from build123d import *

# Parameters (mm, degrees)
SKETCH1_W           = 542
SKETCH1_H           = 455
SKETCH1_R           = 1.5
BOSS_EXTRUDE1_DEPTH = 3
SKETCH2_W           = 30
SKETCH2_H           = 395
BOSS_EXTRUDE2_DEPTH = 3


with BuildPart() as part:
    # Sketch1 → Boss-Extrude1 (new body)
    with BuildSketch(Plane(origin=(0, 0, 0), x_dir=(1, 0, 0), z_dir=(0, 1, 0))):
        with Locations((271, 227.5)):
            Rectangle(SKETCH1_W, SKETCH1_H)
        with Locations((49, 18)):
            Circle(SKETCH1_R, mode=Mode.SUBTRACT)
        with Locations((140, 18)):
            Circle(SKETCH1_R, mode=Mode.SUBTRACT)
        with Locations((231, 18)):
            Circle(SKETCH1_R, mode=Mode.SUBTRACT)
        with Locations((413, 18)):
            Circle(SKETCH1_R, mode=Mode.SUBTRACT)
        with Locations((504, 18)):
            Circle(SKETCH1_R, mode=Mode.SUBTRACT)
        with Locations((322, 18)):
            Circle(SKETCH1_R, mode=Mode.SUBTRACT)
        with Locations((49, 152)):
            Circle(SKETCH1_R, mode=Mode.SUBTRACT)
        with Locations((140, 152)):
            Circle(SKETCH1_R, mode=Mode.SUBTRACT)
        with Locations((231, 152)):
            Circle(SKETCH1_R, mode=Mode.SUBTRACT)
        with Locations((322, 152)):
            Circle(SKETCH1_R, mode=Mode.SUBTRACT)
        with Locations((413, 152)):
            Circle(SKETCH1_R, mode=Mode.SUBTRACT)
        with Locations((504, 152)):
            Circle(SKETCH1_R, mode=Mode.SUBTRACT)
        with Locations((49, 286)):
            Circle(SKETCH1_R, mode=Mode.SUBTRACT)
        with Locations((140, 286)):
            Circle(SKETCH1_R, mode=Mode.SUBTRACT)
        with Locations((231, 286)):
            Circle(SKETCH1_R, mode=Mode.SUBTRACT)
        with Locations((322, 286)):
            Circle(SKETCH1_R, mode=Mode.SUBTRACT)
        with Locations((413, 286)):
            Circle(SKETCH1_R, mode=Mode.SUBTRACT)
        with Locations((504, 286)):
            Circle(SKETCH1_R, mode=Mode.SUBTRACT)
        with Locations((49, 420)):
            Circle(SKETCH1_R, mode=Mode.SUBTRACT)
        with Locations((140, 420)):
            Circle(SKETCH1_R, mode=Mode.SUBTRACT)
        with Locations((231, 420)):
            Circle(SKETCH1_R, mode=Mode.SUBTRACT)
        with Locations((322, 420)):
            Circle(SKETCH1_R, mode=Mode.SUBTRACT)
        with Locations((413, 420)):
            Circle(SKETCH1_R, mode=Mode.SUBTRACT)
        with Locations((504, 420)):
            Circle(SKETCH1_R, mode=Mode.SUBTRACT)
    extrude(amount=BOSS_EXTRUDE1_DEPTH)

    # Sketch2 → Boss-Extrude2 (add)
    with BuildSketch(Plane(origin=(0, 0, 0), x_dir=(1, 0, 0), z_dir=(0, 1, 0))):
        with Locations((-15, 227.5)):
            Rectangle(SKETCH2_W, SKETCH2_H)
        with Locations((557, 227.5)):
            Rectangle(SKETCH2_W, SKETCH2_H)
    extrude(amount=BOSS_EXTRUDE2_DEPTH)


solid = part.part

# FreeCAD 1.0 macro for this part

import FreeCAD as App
import Part
import Sketcher

V = App.Vector
Q = App.Units.Quantity

doc = App.newDocument("Part")
body = doc.addObject("PartDesign::Body", "Body")

# Sketch on XZ plane
sketch1 = body.newObject("Sketcher::SketchObject", "Sketch")
sketch1.AttachmentSupport = (doc.getObject("XZ_Plane"), [""])
sketch1.MapMode = "FlatFace"
sketch1.addGeometry([
    Part.LineSegment(V(0, -455, 0), V(0, 0, 0)),  # 0
    Part.LineSegment(V(0, 0, 0), V(542, 0, 0)),  # 1
    Part.LineSegment(V(542, 0, 0), V(542, -455, 0)),  # 2
    Part.LineSegment(V(542, -455, 0), V(0, -455, 0)),  # 3
    Part.Circle(V(49, -18, 0), V(0, 0, 1), 1.5),  # 4
    Part.Circle(V(140, -18, 0), V(0, 0, 1), 1.5),  # 5
    Part.Circle(V(231, -18, 0), V(0, 0, 1), 1.5),  # 6
    Part.Circle(V(49, -152, 0), V(0, 0, 1), 1.5),  # 7
    Part.Circle(V(140, -152, 0), V(0, 0, 1), 1.5),  # 8
    Part.Circle(V(231, -152, 0), V(0, 0, 1), 1.5),  # 9
    Part.Circle(V(322, -18, 0), V(0, 0, 1), 1.5),  # 10
    Part.Circle(V(413, -18, 0), V(0, 0, 1), 1.5),  # 11
    Part.Circle(V(504, -18, 0), V(0, 0, 1), 1.5),  # 12
    Part.Circle(V(322, -152, 0), V(0, 0, 1), 1.5),  # 13
    Part.Circle(V(413, -152, 0), V(0, 0, 1), 1.5),  # 14
    Part.Circle(V(504, -152, 0), V(0, 0, 1), 1.5),  # 15
    Part.Circle(V(49, -286, 0), V(0, 0, 1), 1.5),  # 16
    Part.Circle(V(140, -286, 0), V(0, 0, 1), 1.5),  # 17
    Part.Circle(V(231, -286, 0), V(0, 0, 1), 1.5),  # 18
    Part.Circle(V(49, -420, 0), V(0, 0, 1), 1.5),  # 19
    Part.Circle(V(140, -420, 0), V(0, 0, 1), 1.5),  # 20
    Part.Circle(V(231, -420, 0), V(0, 0, 1), 1.5),  # 21
    Part.Circle(V(322, -286, 0), V(0, 0, 1), 1.5),  # 22
    Part.Circle(V(413, -286, 0), V(0, 0, 1), 1.5),  # 23
    Part.Circle(V(504, -286, 0), V(0, 0, 1), 1.5),  # 24
    Part.Circle(V(322, -420, 0), V(0, 0, 1), 1.5),  # 25
    Part.Circle(V(413, -420, 0), V(0, 0, 1), 1.5),  # 26
    Part.Circle(V(504, -420, 0), V(0, 0, 1), 1.5),  # 27
], False)
sketch1.addConstraint([
    Sketcher.Constraint("Coincident", 0, 2, 1, 1),
    Sketcher.Constraint("Coincident", 1, 2, 2, 1),
    Sketcher.Constraint("Coincident", 2, 2, 3, 1),
    Sketcher.Constraint("Coincident", 3, 2, 0, 1),
    Sketcher.Constraint("Vertical", 0),
    Sketcher.Constraint("Horizontal", 1),
    Sketcher.Constraint("Vertical", 2),
    Sketcher.Constraint("Horizontal", 3),
    Sketcher.Constraint("Coincident", 0, 2, -1, 1),
    Sketcher.Constraint("Equal", 4, 5),
    Sketcher.Constraint("Equal", 5, 6),
    Sketcher.Constraint("Equal", 6, 7),
    Sketcher.Constraint("Equal", 7, 8),
    Sketcher.Constraint("Equal", 8, 9),
    Sketcher.Constraint("Equal", 9, 10),
    Sketcher.Constraint("Equal", 10, 11),
    Sketcher.Constraint("Equal", 11, 12),
    Sketcher.Constraint("Equal", 12, 13),
    Sketcher.Constraint("Equal", 13, 14),
    Sketcher.Constraint("Equal", 14, 15),
    Sketcher.Constraint("Equal", 15, 16),
    Sketcher.Constraint("Equal", 16, 17),
    Sketcher.Constraint("Equal", 17, 18),
    Sketcher.Constraint("Equal", 18, 19),
    Sketcher.Constraint("Equal", 19, 20),
    Sketcher.Constraint("Equal", 20, 21),
    Sketcher.Constraint("Equal", 21, 22),
    Sketcher.Constraint("Equal", 22, 23),
    Sketcher.Constraint("Equal", 23, 24),
    Sketcher.Constraint("Equal", 24, 25),
    Sketcher.Constraint("Equal", 25, 26),
    Sketcher.Constraint("Equal", 26, 27),
    Sketcher.Constraint("Horizontal", 4, 3, 5, 3),
    Sketcher.Constraint("Horizontal", 5, 3, 6, 3),
    Sketcher.Constraint("Horizontal", 7, 3, 8, 3),
    Sketcher.Constraint("Horizontal", 8, 3, 9, 3),
    Sketcher.Constraint("Horizontal", 6, 3, 10, 3),
    Sketcher.Constraint("Horizontal", 10, 3, 11, 3),
    Sketcher.Constraint("Horizontal", 11, 3, 12, 3),
    Sketcher.Constraint("Horizontal", 9, 3, 13, 3),
    Sketcher.Constraint("Horizontal", 13, 3, 14, 3),
    Sketcher.Constraint("Horizontal", 14, 3, 15, 3),
    Sketcher.Constraint("Horizontal", 16, 3, 17, 3),
    Sketcher.Constraint("Horizontal", 17, 3, 18, 3),
    Sketcher.Constraint("Horizontal", 19, 3, 20, 3),
    Sketcher.Constraint("Horizontal", 20, 3, 21, 3),
    Sketcher.Constraint("Horizontal", 18, 3, 22, 3),
    Sketcher.Constraint("Horizontal", 22, 3, 23, 3),
    Sketcher.Constraint("Horizontal", 23, 3, 24, 3),
    Sketcher.Constraint("Horizontal", 21, 3, 25, 3),
    Sketcher.Constraint("Horizontal", 25, 3, 26, 3),
    Sketcher.Constraint("Horizontal", 26, 3, 27, 3),
    Sketcher.Constraint("Vertical", 4, 3, 7, 3),
    Sketcher.Constraint("Vertical", 5, 3, 8, 3),
    Sketcher.Constraint("Vertical", 6, 3, 9, 3),
    Sketcher.Constraint("Vertical", 10, 3, 13, 3),
    Sketcher.Constraint("Vertical", 11, 3, 14, 3),
    Sketcher.Constraint("Vertical", 12, 3, 15, 3),
    Sketcher.Constraint("Vertical", 7, 3, 16, 3),
    Sketcher.Constraint("Vertical", 8, 3, 17, 3),
    Sketcher.Constraint("Vertical", 9, 3, 18, 3),
    Sketcher.Constraint("Vertical", 16, 3, 19, 3),
    Sketcher.Constraint("Vertical", 17, 3, 20, 3),
    Sketcher.Constraint("Vertical", 18, 3, 21, 3),
    Sketcher.Constraint("Vertical", 13, 3, 22, 3),
    Sketcher.Constraint("Vertical", 14, 3, 23, 3),
    Sketcher.Constraint("Vertical", 15, 3, 24, 3),
    Sketcher.Constraint("Vertical", 22, 3, 25, 3),
    Sketcher.Constraint("Vertical", 23, 3, 26, 3),
    Sketcher.Constraint("Vertical", 24, 3, 27, 3),
    Sketcher.Constraint("Diameter", 4, Q("3 mm")),
    Sketcher.Constraint("DistanceX", 1, 1, 1, 2, Q("542 mm")),
    Sketcher.Constraint("DistanceY", 0, 1, 0, 2, Q("455 mm")),
    Sketcher.Constraint("DistanceX", -1, 1, 4, 3, Q("49 mm")),
    Sketcher.Constraint("DistanceY", 4, 3, -1, 1, Q("18 mm")),
    Sketcher.Constraint("DistanceX", -1, 1, 5, 3, Q("140 mm")),
    Sketcher.Constraint("DistanceX", -1, 1, 6, 3, Q("231 mm")),
    Sketcher.Constraint("DistanceY", 7, 3, -1, 1, Q("152 mm")),
    Sketcher.Constraint("DistanceX", -1, 1, 10, 3, Q("322 mm")),
    Sketcher.Constraint("DistanceX", -1, 1, 11, 3, Q("413 mm")),
    Sketcher.Constraint("DistanceX", -1, 1, 12, 3, Q("504 mm")),
    Sketcher.Constraint("DistanceY", 16, 3, -1, 1, Q("286 mm")),
    Sketcher.Constraint("DistanceY", 19, 3, -1, 1, Q("420 mm")),
])
pad1 = body.newObject("PartDesign::Pad", "Pad")
pad1.Profile = sketch1
pad1.Length = 3
pad1.Reversed = True

# Sketch on XZ plane
sketch2 = body.newObject("Sketcher::SketchObject", "Sketch001")
sketch2.AttachmentSupport = (doc.getObject("XZ_Plane"), [""])
sketch2.MapMode = "FlatFace"
sketch2.addGeometry([
    Part.LineSegment(V(-30, -425, 0), V(-30, -30, 0)),  # 0
    Part.LineSegment(V(-30, -30, 0), V(0, -30, 0)),  # 1
    Part.LineSegment(V(0, -30, 0), V(0, -425, 0)),  # 2
    Part.LineSegment(V(0, -425, 0), V(-30, -425, 0)),  # 3
    Part.LineSegment(V(542, -425, 0), V(542, -30, 0)),  # 4
    Part.LineSegment(V(542, -30, 0), V(572, -30, 0)),  # 5
    Part.LineSegment(V(572, -30, 0), V(572, -425, 0)),  # 6
    Part.LineSegment(V(572, -425, 0), V(542, -425, 0)),  # 7
], False)
sketch2.addConstraint([
    Sketcher.Constraint("Coincident", 0, 2, 1, 1),
    Sketcher.Constraint("Coincident", 1, 2, 2, 1),
    Sketcher.Constraint("Coincident", 2, 2, 3, 1),
    Sketcher.Constraint("Coincident", 3, 2, 0, 1),
    Sketcher.Constraint("Coincident", 4, 2, 5, 1),
    Sketcher.Constraint("Coincident", 5, 2, 6, 1),
    Sketcher.Constraint("Coincident", 6, 2, 7, 1),
    Sketcher.Constraint("Coincident", 7, 2, 4, 1),
    Sketcher.Constraint("Vertical", 0),
    Sketcher.Constraint("Horizontal", 1),
    Sketcher.Constraint("Vertical", 2),
    Sketcher.Constraint("Horizontal", 3),
    Sketcher.Constraint("Vertical", 4),
    Sketcher.Constraint("Horizontal", 5),
    Sketcher.Constraint("Vertical", 6),
    Sketcher.Constraint("Horizontal", 7),
    Sketcher.Constraint("PointOnObject", 1, 2, -2),
    Sketcher.Constraint("Horizontal", 1, 2, 4, 2),
    Sketcher.Constraint("Horizontal", 3, 2, 6, 2),
    Sketcher.Constraint("Equal", 3, 5),
    Sketcher.Constraint("DistanceX", 1, 1, 1, 2, Q("30 mm")),
    Sketcher.Constraint("DistanceY", 0, 1, 0, 2, Q("395 mm")),
    Sketcher.Constraint("DistanceY", 0, 2, -1, 1, Q("30 mm")),
    Sketcher.Constraint("DistanceX", -1, 1, 4, 2, Q("542 mm")),
])
pad2 = body.newObject("PartDesign::Pad", "Pad001")
pad2.Profile = sketch2
pad2.Length = 3
pad2.Reversed = True

doc.recompute()
